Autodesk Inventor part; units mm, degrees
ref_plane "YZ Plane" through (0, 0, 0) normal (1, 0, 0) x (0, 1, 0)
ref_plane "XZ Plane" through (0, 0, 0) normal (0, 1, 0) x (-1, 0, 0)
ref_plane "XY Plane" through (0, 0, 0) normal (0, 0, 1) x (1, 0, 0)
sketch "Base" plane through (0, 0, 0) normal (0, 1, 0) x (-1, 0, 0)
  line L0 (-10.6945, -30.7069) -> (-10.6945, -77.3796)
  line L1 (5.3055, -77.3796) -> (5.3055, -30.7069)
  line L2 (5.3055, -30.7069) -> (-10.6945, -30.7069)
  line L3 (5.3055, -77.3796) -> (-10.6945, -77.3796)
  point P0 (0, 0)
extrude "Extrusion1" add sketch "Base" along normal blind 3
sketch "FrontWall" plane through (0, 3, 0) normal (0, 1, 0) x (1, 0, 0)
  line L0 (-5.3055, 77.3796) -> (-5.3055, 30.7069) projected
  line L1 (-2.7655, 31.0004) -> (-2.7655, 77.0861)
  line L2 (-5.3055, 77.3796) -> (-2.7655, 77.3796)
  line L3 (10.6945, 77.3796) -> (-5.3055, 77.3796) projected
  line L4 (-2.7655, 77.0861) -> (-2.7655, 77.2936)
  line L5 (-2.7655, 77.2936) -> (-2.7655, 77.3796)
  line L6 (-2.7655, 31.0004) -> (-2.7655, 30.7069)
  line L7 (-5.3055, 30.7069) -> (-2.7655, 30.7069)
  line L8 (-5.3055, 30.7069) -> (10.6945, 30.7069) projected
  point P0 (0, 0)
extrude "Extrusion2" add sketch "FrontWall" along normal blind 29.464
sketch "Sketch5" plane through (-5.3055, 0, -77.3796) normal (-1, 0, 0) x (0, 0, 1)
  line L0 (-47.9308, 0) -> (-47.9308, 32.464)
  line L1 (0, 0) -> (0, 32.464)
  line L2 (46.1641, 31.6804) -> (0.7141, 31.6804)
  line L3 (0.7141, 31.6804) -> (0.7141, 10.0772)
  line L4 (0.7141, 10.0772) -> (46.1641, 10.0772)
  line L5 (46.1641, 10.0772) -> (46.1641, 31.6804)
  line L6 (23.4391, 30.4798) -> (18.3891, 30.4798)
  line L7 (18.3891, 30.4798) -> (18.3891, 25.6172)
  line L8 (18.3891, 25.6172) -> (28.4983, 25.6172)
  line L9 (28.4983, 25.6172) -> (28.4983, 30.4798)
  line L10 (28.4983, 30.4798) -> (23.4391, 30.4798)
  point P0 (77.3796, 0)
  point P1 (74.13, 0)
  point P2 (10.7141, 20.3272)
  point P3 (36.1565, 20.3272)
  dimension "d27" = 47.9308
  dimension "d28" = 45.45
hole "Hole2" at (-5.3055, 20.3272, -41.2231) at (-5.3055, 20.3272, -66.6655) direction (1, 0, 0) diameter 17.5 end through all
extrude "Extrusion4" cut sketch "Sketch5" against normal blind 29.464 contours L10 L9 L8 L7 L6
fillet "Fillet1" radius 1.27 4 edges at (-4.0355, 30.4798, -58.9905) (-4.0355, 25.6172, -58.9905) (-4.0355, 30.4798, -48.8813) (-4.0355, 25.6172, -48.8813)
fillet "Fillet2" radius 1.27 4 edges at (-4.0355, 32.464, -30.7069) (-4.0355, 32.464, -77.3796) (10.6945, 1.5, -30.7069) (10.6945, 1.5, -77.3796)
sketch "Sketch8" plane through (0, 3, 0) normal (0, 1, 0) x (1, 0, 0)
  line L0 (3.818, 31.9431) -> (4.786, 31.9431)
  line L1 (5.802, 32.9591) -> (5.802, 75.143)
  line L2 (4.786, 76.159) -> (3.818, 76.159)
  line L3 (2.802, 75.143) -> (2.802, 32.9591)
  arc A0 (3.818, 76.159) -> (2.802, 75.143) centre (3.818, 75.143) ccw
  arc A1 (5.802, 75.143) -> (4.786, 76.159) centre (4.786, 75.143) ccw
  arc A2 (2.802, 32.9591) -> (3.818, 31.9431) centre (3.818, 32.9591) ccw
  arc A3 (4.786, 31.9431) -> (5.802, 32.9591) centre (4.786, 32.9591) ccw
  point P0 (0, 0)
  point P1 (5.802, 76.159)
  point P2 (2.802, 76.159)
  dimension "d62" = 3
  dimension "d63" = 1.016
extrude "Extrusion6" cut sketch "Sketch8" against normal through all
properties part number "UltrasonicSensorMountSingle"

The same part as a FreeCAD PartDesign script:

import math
import FreeCAD as App
import Part
import Sketcher
Q = App.Units.Quantity


def edges_at(feature, points):
    """Names of the edges that pass closest to the given points."""
    edges = feature.Shape.Edges
    near = lambda p: min(range(len(edges)), key=lambda i: edges[i].distToShape(Part.Vertex(*p))[0])
    return sorted({f"Edge{near(p) + 1}" for p in points})

doc = App.newDocument("Part")
body = doc.addObject("PartDesign::Body", "Body")

# Sketch on XZ plane
sketch1 = body.newObject("Sketcher::SketchObject", "Sketch")
sketch1.AttachmentSupport = (doc.getObject("XZ_Plane"), [""])
sketch1.MapMode = "FlatFace"
sketch1.addGeometry([
    Part.LineSegment(App.Vector(-5, -31, 0), App.Vector(11, -31, 0)),
    Part.LineSegment(App.Vector(11, -31, 0), App.Vector(11, -77, 0)),
    Part.LineSegment(App.Vector(11, -77, 0), App.Vector(-5, -77, 0)),
    Part.LineSegment(App.Vector(-5, -77, 0), App.Vector(-5, -31, 0)),
], False)
sketch1.addConstraint([
    Sketcher.Constraint("Coincident", 0, 2, 1, 1),
    Sketcher.Constraint("Coincident", 1, 2, 2, 1),
    Sketcher.Constraint("Coincident", 2, 2, 3, 1),
    Sketcher.Constraint("Coincident", 3, 2, 0, 1),
    Sketcher.Constraint("Horizontal", 0),
    Sketcher.Constraint("Vertical", 1),
    Sketcher.Constraint("Horizontal", 2),
    Sketcher.Constraint("Vertical", 3),
    Sketcher.Constraint("DistanceY", 1, 2, 1, 1, Q("1.8375 in")),
    Sketcher.Constraint("DistanceX", 0, 1, 0, 2, 16.0),
    Sketcher.Constraint("DistanceX", -1, 1, 0, 2, 10.6945),
    Sketcher.Constraint("DistanceY", 0, 2, -1, 1, 30.707),
])
pad1 = body.newObject("PartDesign::Pad", "Pad")
pad1.Profile = sketch1
pad1.Length = Q("0.1181102 in")
pad1.Reversed = True

# Sketch on XZ plane
sketch2 = body.newObject("Sketcher::SketchObject", "Sketch001")
sketch2.AttachmentSupport = (doc.getObject("XZ_Plane"), [""])
sketch2.MapMode = "FlatFace"
sketch2.AttachmentOffset = App.Placement(App.Vector(0, 0, -0.1181102 * 25.4), App.Rotation())
sketch2.addGeometry([
    Part.LineSegment(App.Vector(-2.8, -77.4, 0), App.Vector(-5.3, -77.4, 0)),
    Part.LineSegment(App.Vector(-5.3, -77.4, 0), App.Vector(-5.3, -30.7, 0)),
    Part.LineSegment(App.Vector(-5.3, -30.7, 0), App.Vector(-2.8, -30.7, 0)),
    Part.LineSegment(App.Vector(-2.8, -30.7, 0), App.Vector(-2.8, -77.4, 0)),
], False)
sketch2.addConstraint([
    Sketcher.Constraint("Coincident", 0, 2, 1, 1),
    Sketcher.Constraint("Coincident", 1, 2, 2, 1),
    Sketcher.Constraint("Coincident", 2, 2, 3, 1),
    Sketcher.Constraint("Coincident", 3, 2, 0, 1),
    Sketcher.Constraint("Horizontal", 0),
    Sketcher.Constraint("Vertical", 1),
    Sketcher.Constraint("Horizontal", 2),
    Sketcher.Constraint("Vertical", 3),
    Sketcher.Constraint("DistanceX", 0, 2, 0, 1, Q("0.1 in")),
    Sketcher.Constraint("DistanceY", 1, 1, 1, 2, Q("1.8375 in")),
    Sketcher.Constraint("DistanceX", 0, 2, -1, 1, 5.3055),
    Sketcher.Constraint("DistanceY", 0, 2, -1, 1, 77.3796),
])
pad2 = body.newObject("PartDesign::Pad", "Pad001")
pad2.Profile = sketch2
pad2.Length = Q("1.16 in")
pad2.Reversed = True

# Sketch on YZ plane
sketch3 = body.newObject("Sketcher::SketchObject", "Sketch002")
sketch3.AttachmentSupport = (doc.getObject("YZ_Plane"), [""])
sketch3.MapMode = "FlatFace"
sketch3.AttachmentOffset = App.Placement(App.Vector(0, 0, -5.3055), App.Rotation())
sketch3.addGeometry([
    Part.Circle(App.Vector(20, -41, 0), App.Vector(0, 0, 1), 9),
    Part.Circle(App.Vector(20, -67, 0), App.Vector(0, 0, 1), 9),
], False)
sketch3.addConstraint([
    Sketcher.Constraint("Equal", 0, 1),
    Sketcher.Constraint("Vertical", 0, 3, 1, 3),
    Sketcher.Constraint("Diameter", 0, 17.5),
    Sketcher.Constraint("DistanceX", -1, 1, 0, 3, 20.3272),
    Sketcher.Constraint("DistanceY", 0, 3, -1, 1, 41.223),
    Sketcher.Constraint("DistanceY", 1, 3, -1, 1, 66.6655),
])
doc.recompute()
hole = body.newObject("PartDesign::Hole", "Hole")
hole.Profile = sketch3
hole.ThreadType = "None"
hole.Diameter = 17.5
hole.DepthType = "ThroughAll"
hole.Reversed = True

# Sketch on YZ plane
sketch4 = body.newObject("Sketcher::SketchObject", "Sketch003")
sketch4.AttachmentSupport = (doc.getObject("YZ_Plane"), [""])
sketch4.MapMode = "FlatFace"
sketch4.AttachmentOffset = App.Placement(App.Vector(0, 0, -5.3055), App.Rotation())
sketch4.addGeometry([
    Part.LineSegment(App.Vector(30.5, -48.9, 0), App.Vector(30.5, -59, 0)),
    Part.LineSegment(App.Vector(30.5, -59, 0), App.Vector(25.6, -59, 0)),
    Part.LineSegment(App.Vector(25.6, -59, 0), App.Vector(25.6, -48.9, 0)),
    Part.LineSegment(App.Vector(25.6, -48.9, 0), App.Vector(30.5, -48.9, 0)),
], False)
sketch4.addConstraint([
    Sketcher.Constraint("Coincident", 0, 2, 1, 1),
    Sketcher.Constraint("Coincident", 1, 2, 2, 1),
    Sketcher.Constraint("Coincident", 2, 2, 3, 1),
    Sketcher.Constraint("Coincident", 3, 2, 0, 1),
    Sketcher.Constraint("Vertical", 0),
    Sketcher.Constraint("Horizontal", 1),
    Sketcher.Constraint("Vertical", 2),
    Sketcher.Constraint("Horizontal", 3),
    Sketcher.Constraint("DistanceX", -1, 1, 0, 2, Q("1.2 in")),
    Sketcher.Constraint("DistanceY", 0, 2, 0, 1, Q("0.398 in")),
    Sketcher.Constraint("DistanceX", 1, 2, 1, 1, 4.8626),
    Sketcher.Constraint("DistanceY", 0, 2, -1, 1, 58.9905),
])
pocket1 = body.newObject("PartDesign::Pocket", "Pocket")
pocket1.Profile = sketch4
pocket1.Length = Q("1.16 in")
pocket1.Reversed = True
doc.recompute()

fillet = body.newObject("PartDesign::Fillet", "Fillet")
fillet.Base = (pocket1, edges_at(pocket1, [
    (-4.035, 30.48, -58.99),
    (-4.035, 25.617, -58.99),
    (-4.035, 30.48, -48.881),
    (-4.035, 25.617, -48.881),
]))
fillet.Radius = Q("0.05 in")
doc.recompute()

fillet2 = body.newObject("PartDesign::Fillet", "Fillet001")
fillet2.Base = (fillet, edges_at(fillet, [
    (-4.035, 32.464, -30.707),
    (-4.035, 32.464, -77.38),
    (10.694, 1.5, -30.707),
    (10.694, 1.5, -77.38),
]))
fillet2.Radius = Q("0.05 in")

# Sketch on XZ plane
sketch5 = body.newObject("Sketcher::SketchObject", "Sketch004")
sketch5.AttachmentSupport = (doc.getObject("XZ_Plane"), [""])
sketch5.MapMode = "FlatFace"
sketch5.AttachmentOffset = App.Placement(App.Vector(0, 0, -0.1181102 * 25.4), App.Rotation())
sketch5.addGeometry([
    Part.ArcOfCircle(Part.Circle(App.Vector(3.8, -33, 0), App.Vector(0, 0, 1), 1), math.radians(90), math.radians(180)),  # 0
    Part.LineSegment(App.Vector(3.8, -31.9, 0), App.Vector(4.8, -31.9, 0)),  # 1
    Part.ArcOfCircle(Part.Circle(App.Vector(4.8, -33, 0), App.Vector(0, 0, 1), 1), math.radians(0), math.radians(90)),  # 2
    Part.LineSegment(App.Vector(5.8, -33, 0), App.Vector(5.8, -75.1, 0)),  # 3
    Part.ArcOfCircle(Part.Circle(App.Vector(4.8, -75.1, 0), App.Vector(0, 0, 1), 1), math.radians(-90), math.radians(0)),  # 4
    Part.LineSegment(App.Vector(4.8, -76.2, 0), App.Vector(3.8, -76.2, 0)),  # 5
    Part.ArcOfCircle(Part.Circle(App.Vector(3.8, -75.1, 0), App.Vector(0, 0, 1), 1), math.radians(180), math.radians(270)),  # 6
    Part.LineSegment(App.Vector(2.8, -75.1, 0), App.Vector(2.8, -33, 0)),  # 7
], False)
sketch5.addConstraint([
    Sketcher.Constraint("Tangent", 0, 1, 1, 1),
    Sketcher.Constraint("Tangent", 1, 2, 2, 2),
    Sketcher.Constraint("Tangent", 2, 1, 3, 1),
    Sketcher.Constraint("Tangent", 3, 2, 4, 2),
    Sketcher.Constraint("Tangent", 4, 1, 5, 1),
    Sketcher.Constraint("Tangent", 5, 2, 6, 2),
    Sketcher.Constraint("Tangent", 6, 1, 7, 1),
    Sketcher.Constraint("Tangent", 7, 2, 0, 2),
    Sketcher.Constraint("Horizontal", 1),
    Sketcher.Constraint("Vertical", 3),
    Sketcher.Constraint("Horizontal", 5),
    Sketcher.Constraint("Vertical", 7),
    Sketcher.Constraint("Equal", 0, 2),
    Sketcher.Constraint("Equal", 2, 4),
    Sketcher.Constraint("Equal", 4, 6),
    Sketcher.Constraint("Radius", 0, Q("0.04 in")),
    Sketcher.Constraint("DistanceX", 6, 1, 3, 2, Q("0.1181 in")),
    Sketcher.Constraint("DistanceY", 3, 2, 3, 1, 42.184),
    Sketcher.Constraint("DistanceY", 0, 3, -1, 1, Q("1.2976 in")),
    Sketcher.Constraint("DistanceX", -1, 1, 0, 3, 3.818),
])
pocket2 = body.newObject("PartDesign::Pocket", "Pocket001")
pocket2.Profile = sketch5
pocket2.Type = "ThroughAll"
pocket2.Reversed = True

doc.recompute()
